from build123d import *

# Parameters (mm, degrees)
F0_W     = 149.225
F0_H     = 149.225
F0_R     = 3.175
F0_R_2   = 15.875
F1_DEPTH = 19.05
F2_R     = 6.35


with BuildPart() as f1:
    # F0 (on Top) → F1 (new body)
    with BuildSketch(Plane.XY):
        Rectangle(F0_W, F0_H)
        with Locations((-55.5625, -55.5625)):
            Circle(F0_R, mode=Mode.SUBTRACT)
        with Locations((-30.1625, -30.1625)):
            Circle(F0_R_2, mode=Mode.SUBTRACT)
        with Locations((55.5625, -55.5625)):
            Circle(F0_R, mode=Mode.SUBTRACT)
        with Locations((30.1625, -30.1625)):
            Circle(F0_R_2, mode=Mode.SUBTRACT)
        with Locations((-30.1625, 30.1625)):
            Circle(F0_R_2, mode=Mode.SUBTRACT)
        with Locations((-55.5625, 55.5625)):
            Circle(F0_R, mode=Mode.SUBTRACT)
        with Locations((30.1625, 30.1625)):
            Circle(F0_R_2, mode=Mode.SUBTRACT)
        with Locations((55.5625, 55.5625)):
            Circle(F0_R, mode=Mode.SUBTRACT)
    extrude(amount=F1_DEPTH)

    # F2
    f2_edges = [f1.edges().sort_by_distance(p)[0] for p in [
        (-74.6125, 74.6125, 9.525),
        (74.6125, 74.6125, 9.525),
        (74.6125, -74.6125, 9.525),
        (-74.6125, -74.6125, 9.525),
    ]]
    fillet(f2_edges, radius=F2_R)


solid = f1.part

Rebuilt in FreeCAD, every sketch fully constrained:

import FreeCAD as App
import Part
import Sketcher
from FreeCAD import Vector
Q = App.Units.Quantity


def edges_at(feature, points):
    """Names of the edges that pass closest to the given points."""
    edges = feature.Shape.Edges
    near = lambda p: min(range(len(edges)), key=lambda i: edges[i].distToShape(Part.Vertex(*p))[0])
    return sorted({f"Edge{near(p) + 1}" for p in points})

doc = App.newDocument("Part")
body = doc.addObject("PartDesign::Body", "Body")

# Sketch on XY plane
sketch1 = body.newObject("Sketcher::SketchObject", "Sketch")
sketch1.AttachmentSupport = (doc.getObject("XY_Plane"), [""])
sketch1.MapMode = "FlatFace"
sketch1.addGeometry(Part.LineSegment(Vector(-74.6, 74.6, 0), Vector(-74.6, -74.6, 0)), False)
sketch1.addGeometry(Part.LineSegment(Vector(-74.6, -74.6, 0), Vector(74.6, -74.6, 0)), False)
sketch1.addGeometry(Part.LineSegment(Vector(74.6, -74.6, 0), Vector(74.6, 74.6, 0)), False)
sketch1.addGeometry(Part.LineSegment(Vector(74.6, 74.6, 0), Vector(-74.6, 74.6, 0)), False)
sketch1.addGeometry(Part.Circle(Vector(-55.6, -55.6, 0), Vector(0, 0, 1), 3.2), False)
sketch1.addGeometry(Part.Circle(Vector(-30.2, -30.2, 0), Vector(0, 0, 1), 15.9), False)
sketch1.addGeometry(Part.Circle(Vector(55.6, -55.6, 0), Vector(0, 0, 1), 3.2), False)
sketch1.addGeometry(Part.Circle(Vector(30.2, -30.2, 0), Vector(0, 0, 1), 15.9), False)
sketch1.addGeometry(Part.Circle(Vector(-30.2, 30.2, 0), Vector(0, 0, 1), 15.9), False)
sketch1.addGeometry(Part.Circle(Vector(-55.6, 55.6, 0), Vector(0, 0, 1), 3.2), False)
sketch1.addGeometry(Part.Circle(Vector(30.2, 30.2, 0), Vector(0, 0, 1), 15.9), False)
sketch1.addGeometry(Part.Circle(Vector(55.6, 55.6, 0), Vector(0, 0, 1), 3.2), False)
sketch1.addConstraint(Sketcher.Constraint("Coincident", 0, 2, 1, 1))
sketch1.addConstraint(Sketcher.Constraint("Coincident", 1, 2, 2, 1))
sketch1.addConstraint(Sketcher.Constraint("Coincident", 2, 2, 3, 1))
sketch1.addConstraint(Sketcher.Constraint("Coincident", 3, 2, 0, 1))
sketch1.addConstraint(Sketcher.Constraint("Vertical", 0))
sketch1.addConstraint(Sketcher.Constraint("Horizontal", 1))
sketch1.addConstraint(Sketcher.Constraint("Vertical", 2))
sketch1.addConstraint(Sketcher.Constraint("Horizontal", 3))
sketch1.addConstraint(Sketcher.Constraint("Equal", 4, 6))
sketch1.addConstraint(Sketcher.Constraint("Equal", 5, 7))
sketch1.addConstraint(Sketcher.Constraint("Equal", 7, 8))
sketch1.addConstraint(Sketcher.Constraint("Equal", 6, 9))
sketch1.addConstraint(Sketcher.Constraint("Equal", 8, 10))
sketch1.addConstraint(Sketcher.Constraint("Equal", 9, 11))
sketch1.addConstraint(Sketcher.Constraint("Symmetric", 7, 3, 8, 3, -1, 1))
sketch1.addConstraint(Sketcher.Constraint("Symmetric", 6, 3, 9, 3, -1, 1))
sketch1.addConstraint(Sketcher.Constraint("Symmetric", 5, 3, 10, 3, -1, 1))
sketch1.addConstraint(Sketcher.Constraint("Symmetric", 4, 3, 11, 3, -1, 1))
sketch1.addConstraint(Sketcher.Constraint("Symmetric", 0, 2, 2, 2, -1, 1))
sketch1.addConstraint(Sketcher.Constraint("Symmetric", 4, 3, 6, 3, -2))
sketch1.addConstraint(Sketcher.Constraint("Symmetric", 5, 3, 7, 3, -2))
sketch1.addConstraint(Sketcher.Constraint("Equal", 3, 0))
sketch1.addConstraint(Sketcher.Constraint("Diameter", 4, Q("0.25 in")))
sketch1.addConstraint(Sketcher.Constraint("Diameter", 5, Q("1.25 in")))
sketch1.addConstraint(Sketcher.Constraint("DistanceX", 4, 3, 5, 3, Q("1 in")))
sketch1.addConstraint(Sketcher.Constraint("DistanceY", 4, 3, 5, 3, Q("1 in")))
sketch1.addConstraint(Sketcher.Constraint("DistanceX", 1, 1, 1, 2, Q("5.875 in")))
sketch1.addConstraint(Sketcher.Constraint("DistanceX", 0, 2, 4, 3, Q("0.75 in")))
sketch1.addConstraint(Sketcher.Constraint("DistanceY", 0, 2, 4, 3, Q("0.75 in")))
pad1 = body.newObject("PartDesign::Pad", "Pad")
pad1.Profile = sketch1
pad1.Length = Q("0.75 in")
doc.recompute()

fillet = body.newObject("PartDesign::Fillet", "Fillet")
fillet.Base = (pad1, edges_at(pad1, [
    (-74.612, 74.612, 9.525),
    (74.612, 74.612, 9.525),
    (74.612, -74.612, 9.525),
    (-74.612, -74.612, 9.525),
]))
fillet.Radius = Q("0.25 in")

doc.recompute()
